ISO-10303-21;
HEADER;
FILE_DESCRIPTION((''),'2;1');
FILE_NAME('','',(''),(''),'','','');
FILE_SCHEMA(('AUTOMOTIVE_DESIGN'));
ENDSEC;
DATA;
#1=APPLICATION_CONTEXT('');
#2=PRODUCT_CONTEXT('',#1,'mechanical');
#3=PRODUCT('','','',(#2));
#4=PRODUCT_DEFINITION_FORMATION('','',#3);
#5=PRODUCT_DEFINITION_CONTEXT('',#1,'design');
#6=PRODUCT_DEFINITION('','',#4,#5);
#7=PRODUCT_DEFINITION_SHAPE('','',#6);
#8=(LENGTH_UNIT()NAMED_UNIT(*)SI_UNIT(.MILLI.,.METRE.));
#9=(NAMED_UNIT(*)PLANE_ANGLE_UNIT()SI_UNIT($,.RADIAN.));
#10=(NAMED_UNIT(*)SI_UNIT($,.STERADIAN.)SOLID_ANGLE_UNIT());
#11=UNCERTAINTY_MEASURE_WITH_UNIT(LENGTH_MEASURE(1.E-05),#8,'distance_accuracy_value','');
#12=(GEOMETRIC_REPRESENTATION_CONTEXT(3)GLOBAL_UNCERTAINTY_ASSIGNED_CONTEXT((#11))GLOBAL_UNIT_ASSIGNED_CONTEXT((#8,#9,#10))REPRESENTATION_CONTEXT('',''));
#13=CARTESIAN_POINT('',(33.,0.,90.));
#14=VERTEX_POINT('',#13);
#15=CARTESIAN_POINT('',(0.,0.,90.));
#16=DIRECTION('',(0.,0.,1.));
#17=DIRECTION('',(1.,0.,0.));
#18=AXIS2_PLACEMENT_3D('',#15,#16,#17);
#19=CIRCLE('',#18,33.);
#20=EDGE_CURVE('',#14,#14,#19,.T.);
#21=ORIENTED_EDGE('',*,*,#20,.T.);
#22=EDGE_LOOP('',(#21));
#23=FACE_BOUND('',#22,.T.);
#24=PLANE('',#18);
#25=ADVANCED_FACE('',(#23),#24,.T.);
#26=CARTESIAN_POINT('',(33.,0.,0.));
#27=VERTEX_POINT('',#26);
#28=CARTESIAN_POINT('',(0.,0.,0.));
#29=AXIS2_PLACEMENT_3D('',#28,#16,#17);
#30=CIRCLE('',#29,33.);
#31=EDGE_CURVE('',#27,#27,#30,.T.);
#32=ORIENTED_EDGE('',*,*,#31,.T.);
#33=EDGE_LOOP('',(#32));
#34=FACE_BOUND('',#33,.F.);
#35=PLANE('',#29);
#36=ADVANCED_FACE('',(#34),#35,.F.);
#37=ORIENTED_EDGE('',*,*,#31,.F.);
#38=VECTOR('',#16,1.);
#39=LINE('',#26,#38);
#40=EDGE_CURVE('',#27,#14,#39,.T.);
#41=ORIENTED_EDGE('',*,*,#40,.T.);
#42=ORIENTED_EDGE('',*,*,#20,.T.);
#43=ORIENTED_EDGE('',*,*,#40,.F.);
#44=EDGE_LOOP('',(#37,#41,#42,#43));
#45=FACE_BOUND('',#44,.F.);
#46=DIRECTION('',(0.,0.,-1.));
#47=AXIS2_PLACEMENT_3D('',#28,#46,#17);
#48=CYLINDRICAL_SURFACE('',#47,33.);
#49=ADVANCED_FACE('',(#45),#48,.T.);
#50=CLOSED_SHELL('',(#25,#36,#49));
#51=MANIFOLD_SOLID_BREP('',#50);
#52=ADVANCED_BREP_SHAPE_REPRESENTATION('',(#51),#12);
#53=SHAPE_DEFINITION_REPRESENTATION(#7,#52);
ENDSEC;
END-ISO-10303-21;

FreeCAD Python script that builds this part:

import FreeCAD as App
import Part
import Sketcher
Q = App.Units.Quantity

doc = App.newDocument("Part")
body = doc.addObject("PartDesign::Body", "Body")

# Sketch on XY plane
sketch1 = doc.addObject("Sketcher::SketchObject", "Sketch")
body.addObject(sketch1)
sketch1.AttachmentSupport = (doc.XY_Plane, [""])
sketch1.MapMode = "FlatFace"
sketch1.addGeometry(Part.Circle(App.Vector(0, 0, 0), App.Vector(0, 0, 1), 33), False)
sketch1.addConstraint([
    Sketcher.Constraint("Coincident", 0, 3, -1, 1),
    Sketcher.Constraint("Diameter", 0, Q("66 mm")),
])
pad1 = doc.addObject("PartDesign::Pad", "Pad")
body.addObject(pad1)
pad1.Profile = sketch1
pad1.Length = 90

doc.recompute()
